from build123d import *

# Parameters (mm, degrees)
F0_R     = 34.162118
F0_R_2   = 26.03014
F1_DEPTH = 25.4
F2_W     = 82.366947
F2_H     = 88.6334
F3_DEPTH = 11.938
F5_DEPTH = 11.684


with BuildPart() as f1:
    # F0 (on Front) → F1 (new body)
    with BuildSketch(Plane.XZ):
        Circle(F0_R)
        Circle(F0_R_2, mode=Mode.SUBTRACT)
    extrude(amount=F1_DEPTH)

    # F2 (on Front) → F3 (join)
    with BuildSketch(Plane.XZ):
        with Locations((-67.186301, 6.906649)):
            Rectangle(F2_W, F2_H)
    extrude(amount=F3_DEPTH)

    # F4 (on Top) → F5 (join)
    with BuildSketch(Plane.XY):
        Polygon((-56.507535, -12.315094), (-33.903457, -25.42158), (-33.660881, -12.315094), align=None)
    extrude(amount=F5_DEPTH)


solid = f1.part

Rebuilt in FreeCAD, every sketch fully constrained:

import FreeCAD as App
import Part
import Sketcher
Q = App.Units.Quantity

doc = App.newDocument("Part")
body = doc.addObject("PartDesign::Body", "Body")

sketch1 = doc.addObject("Sketcher::SketchObject", "Sketch")
body.addObject(sketch1)
sketch1.AttachmentSupport = (doc.XZ_Plane, [""])
sketch1.MapMode = "FlatFace"
sketch1.addGeometry([
    Part.Circle(App.Vector(0, 0, 0), App.Vector(0, 0, 1), 34.162118),
    Part.Circle(App.Vector(0, 0, 0), App.Vector(0, 0, 1), 26.03014),
], False)
sketch1.addConstraint([
    Sketcher.Constraint("Coincident", 0, 3, -1, 1),
    Sketcher.Constraint("Coincident", 1, 3, -1, 1),
    Sketcher.Constraint("Diameter", 1, 52.06028),
    Sketcher.Constraint("Diameter", 0, 68.324236),
])
pad1 = doc.addObject("PartDesign::Pad", "Pad")
body.addObject(pad1)
pad1.Profile = sketch1
pad1.Length = Q("1 in")

sketch2 = doc.addObject("Sketcher::SketchObject", "Sketch001")
body.addObject(sketch2)
sketch2.AttachmentSupport = (doc.XZ_Plane, [""])
sketch2.MapMode = "FlatFace"
sketch2.addGeometry([
    Part.LineSegment(App.Vector(-108.369775, 51.223349, 0), App.Vector(-108.369775, -37.410051, 0)),
    Part.LineSegment(App.Vector(-108.369775, -37.410051, 0), App.Vector(-26.002827, -37.410051, 0)),
    Part.LineSegment(App.Vector(-26.002827, -37.410051, 0), App.Vector(-26.002827, 51.223349, 0)),
    Part.LineSegment(App.Vector(-26.002827, 51.223349, 0), App.Vector(-108.369775, 51.223349, 0)),
], False)
sketch2.addConstraint([
    Sketcher.Constraint("Coincident", 0, 2, 1, 1),
    Sketcher.Constraint("Coincident", 1, 2, 2, 1),
    Sketcher.Constraint("Coincident", 2, 2, 3, 1),
    Sketcher.Constraint("Coincident", 3, 2, 0, 1),
    Sketcher.Constraint("Vertical", 0),
    Sketcher.Constraint("Horizontal", 1),
    Sketcher.Constraint("Vertical", 2),
    Sketcher.Constraint("Horizontal", 3),
    Sketcher.Constraint("DistanceY", 0, 2, 0, 1, 88.6334),
    Sketcher.Constraint("DistanceX", 1, 1, 1, 2, 82.366947),
    Sketcher.Constraint("DistanceY", 0, 2, -1, 1, 37.410051),
    Sketcher.Constraint("DistanceX", 0, 2, -1, 1, 108.369775),
])
pad2 = doc.addObject("PartDesign::Pad", "Pad001")
body.addObject(pad2)
pad2.Profile = sketch2
pad2.Length = Q("0.47 in")

sketch3 = doc.addObject("Sketcher::SketchObject", "Sketch002")
body.addObject(sketch3)
sketch3.AttachmentSupport = (doc.XY_Plane, [""])
sketch3.MapMode = "FlatFace"
sketch3.addGeometry([
    Part.LineSegment(App.Vector(-56.507535, -12.315094, 0), App.Vector(-33.903457, -25.42158, 0)),
    Part.LineSegment(App.Vector(-33.903457, -25.42158, 0), App.Vector(-33.660881, -12.315094, 0)),
    Part.LineSegment(App.Vector(-33.660881, -12.315094, 0), App.Vector(-56.507535, -12.315094, 0)),
], False)
sketch3.addConstraint([
    Sketcher.Constraint("Coincident", 0, 2, 1, 1),
    Sketcher.Constraint("Coincident", 1, 2, 2, 1),
    Sketcher.Constraint("Coincident", 2, 2, 0, 1),
    Sketcher.Constraint("Horizontal", 2),
    Sketcher.Constraint("Distance", 1, 13.108731),
    Sketcher.Constraint("DistanceX", 2, 2, 2, 1, 22.846654),
    Sketcher.Constraint("DistanceY", 0, 2, -1, 1, 25.42158),
    Sketcher.Constraint("DistanceX", 1, 2, -1, 1, 33.660881),
    Sketcher.Constraint("Distance", 0, 26.128994),
])
pad3 = doc.addObject("PartDesign::Pad", "Pad002")
body.addObject(pad3)
pad3.Profile = sketch3
pad3.Length = Q("0.46 in")

doc.recompute()
